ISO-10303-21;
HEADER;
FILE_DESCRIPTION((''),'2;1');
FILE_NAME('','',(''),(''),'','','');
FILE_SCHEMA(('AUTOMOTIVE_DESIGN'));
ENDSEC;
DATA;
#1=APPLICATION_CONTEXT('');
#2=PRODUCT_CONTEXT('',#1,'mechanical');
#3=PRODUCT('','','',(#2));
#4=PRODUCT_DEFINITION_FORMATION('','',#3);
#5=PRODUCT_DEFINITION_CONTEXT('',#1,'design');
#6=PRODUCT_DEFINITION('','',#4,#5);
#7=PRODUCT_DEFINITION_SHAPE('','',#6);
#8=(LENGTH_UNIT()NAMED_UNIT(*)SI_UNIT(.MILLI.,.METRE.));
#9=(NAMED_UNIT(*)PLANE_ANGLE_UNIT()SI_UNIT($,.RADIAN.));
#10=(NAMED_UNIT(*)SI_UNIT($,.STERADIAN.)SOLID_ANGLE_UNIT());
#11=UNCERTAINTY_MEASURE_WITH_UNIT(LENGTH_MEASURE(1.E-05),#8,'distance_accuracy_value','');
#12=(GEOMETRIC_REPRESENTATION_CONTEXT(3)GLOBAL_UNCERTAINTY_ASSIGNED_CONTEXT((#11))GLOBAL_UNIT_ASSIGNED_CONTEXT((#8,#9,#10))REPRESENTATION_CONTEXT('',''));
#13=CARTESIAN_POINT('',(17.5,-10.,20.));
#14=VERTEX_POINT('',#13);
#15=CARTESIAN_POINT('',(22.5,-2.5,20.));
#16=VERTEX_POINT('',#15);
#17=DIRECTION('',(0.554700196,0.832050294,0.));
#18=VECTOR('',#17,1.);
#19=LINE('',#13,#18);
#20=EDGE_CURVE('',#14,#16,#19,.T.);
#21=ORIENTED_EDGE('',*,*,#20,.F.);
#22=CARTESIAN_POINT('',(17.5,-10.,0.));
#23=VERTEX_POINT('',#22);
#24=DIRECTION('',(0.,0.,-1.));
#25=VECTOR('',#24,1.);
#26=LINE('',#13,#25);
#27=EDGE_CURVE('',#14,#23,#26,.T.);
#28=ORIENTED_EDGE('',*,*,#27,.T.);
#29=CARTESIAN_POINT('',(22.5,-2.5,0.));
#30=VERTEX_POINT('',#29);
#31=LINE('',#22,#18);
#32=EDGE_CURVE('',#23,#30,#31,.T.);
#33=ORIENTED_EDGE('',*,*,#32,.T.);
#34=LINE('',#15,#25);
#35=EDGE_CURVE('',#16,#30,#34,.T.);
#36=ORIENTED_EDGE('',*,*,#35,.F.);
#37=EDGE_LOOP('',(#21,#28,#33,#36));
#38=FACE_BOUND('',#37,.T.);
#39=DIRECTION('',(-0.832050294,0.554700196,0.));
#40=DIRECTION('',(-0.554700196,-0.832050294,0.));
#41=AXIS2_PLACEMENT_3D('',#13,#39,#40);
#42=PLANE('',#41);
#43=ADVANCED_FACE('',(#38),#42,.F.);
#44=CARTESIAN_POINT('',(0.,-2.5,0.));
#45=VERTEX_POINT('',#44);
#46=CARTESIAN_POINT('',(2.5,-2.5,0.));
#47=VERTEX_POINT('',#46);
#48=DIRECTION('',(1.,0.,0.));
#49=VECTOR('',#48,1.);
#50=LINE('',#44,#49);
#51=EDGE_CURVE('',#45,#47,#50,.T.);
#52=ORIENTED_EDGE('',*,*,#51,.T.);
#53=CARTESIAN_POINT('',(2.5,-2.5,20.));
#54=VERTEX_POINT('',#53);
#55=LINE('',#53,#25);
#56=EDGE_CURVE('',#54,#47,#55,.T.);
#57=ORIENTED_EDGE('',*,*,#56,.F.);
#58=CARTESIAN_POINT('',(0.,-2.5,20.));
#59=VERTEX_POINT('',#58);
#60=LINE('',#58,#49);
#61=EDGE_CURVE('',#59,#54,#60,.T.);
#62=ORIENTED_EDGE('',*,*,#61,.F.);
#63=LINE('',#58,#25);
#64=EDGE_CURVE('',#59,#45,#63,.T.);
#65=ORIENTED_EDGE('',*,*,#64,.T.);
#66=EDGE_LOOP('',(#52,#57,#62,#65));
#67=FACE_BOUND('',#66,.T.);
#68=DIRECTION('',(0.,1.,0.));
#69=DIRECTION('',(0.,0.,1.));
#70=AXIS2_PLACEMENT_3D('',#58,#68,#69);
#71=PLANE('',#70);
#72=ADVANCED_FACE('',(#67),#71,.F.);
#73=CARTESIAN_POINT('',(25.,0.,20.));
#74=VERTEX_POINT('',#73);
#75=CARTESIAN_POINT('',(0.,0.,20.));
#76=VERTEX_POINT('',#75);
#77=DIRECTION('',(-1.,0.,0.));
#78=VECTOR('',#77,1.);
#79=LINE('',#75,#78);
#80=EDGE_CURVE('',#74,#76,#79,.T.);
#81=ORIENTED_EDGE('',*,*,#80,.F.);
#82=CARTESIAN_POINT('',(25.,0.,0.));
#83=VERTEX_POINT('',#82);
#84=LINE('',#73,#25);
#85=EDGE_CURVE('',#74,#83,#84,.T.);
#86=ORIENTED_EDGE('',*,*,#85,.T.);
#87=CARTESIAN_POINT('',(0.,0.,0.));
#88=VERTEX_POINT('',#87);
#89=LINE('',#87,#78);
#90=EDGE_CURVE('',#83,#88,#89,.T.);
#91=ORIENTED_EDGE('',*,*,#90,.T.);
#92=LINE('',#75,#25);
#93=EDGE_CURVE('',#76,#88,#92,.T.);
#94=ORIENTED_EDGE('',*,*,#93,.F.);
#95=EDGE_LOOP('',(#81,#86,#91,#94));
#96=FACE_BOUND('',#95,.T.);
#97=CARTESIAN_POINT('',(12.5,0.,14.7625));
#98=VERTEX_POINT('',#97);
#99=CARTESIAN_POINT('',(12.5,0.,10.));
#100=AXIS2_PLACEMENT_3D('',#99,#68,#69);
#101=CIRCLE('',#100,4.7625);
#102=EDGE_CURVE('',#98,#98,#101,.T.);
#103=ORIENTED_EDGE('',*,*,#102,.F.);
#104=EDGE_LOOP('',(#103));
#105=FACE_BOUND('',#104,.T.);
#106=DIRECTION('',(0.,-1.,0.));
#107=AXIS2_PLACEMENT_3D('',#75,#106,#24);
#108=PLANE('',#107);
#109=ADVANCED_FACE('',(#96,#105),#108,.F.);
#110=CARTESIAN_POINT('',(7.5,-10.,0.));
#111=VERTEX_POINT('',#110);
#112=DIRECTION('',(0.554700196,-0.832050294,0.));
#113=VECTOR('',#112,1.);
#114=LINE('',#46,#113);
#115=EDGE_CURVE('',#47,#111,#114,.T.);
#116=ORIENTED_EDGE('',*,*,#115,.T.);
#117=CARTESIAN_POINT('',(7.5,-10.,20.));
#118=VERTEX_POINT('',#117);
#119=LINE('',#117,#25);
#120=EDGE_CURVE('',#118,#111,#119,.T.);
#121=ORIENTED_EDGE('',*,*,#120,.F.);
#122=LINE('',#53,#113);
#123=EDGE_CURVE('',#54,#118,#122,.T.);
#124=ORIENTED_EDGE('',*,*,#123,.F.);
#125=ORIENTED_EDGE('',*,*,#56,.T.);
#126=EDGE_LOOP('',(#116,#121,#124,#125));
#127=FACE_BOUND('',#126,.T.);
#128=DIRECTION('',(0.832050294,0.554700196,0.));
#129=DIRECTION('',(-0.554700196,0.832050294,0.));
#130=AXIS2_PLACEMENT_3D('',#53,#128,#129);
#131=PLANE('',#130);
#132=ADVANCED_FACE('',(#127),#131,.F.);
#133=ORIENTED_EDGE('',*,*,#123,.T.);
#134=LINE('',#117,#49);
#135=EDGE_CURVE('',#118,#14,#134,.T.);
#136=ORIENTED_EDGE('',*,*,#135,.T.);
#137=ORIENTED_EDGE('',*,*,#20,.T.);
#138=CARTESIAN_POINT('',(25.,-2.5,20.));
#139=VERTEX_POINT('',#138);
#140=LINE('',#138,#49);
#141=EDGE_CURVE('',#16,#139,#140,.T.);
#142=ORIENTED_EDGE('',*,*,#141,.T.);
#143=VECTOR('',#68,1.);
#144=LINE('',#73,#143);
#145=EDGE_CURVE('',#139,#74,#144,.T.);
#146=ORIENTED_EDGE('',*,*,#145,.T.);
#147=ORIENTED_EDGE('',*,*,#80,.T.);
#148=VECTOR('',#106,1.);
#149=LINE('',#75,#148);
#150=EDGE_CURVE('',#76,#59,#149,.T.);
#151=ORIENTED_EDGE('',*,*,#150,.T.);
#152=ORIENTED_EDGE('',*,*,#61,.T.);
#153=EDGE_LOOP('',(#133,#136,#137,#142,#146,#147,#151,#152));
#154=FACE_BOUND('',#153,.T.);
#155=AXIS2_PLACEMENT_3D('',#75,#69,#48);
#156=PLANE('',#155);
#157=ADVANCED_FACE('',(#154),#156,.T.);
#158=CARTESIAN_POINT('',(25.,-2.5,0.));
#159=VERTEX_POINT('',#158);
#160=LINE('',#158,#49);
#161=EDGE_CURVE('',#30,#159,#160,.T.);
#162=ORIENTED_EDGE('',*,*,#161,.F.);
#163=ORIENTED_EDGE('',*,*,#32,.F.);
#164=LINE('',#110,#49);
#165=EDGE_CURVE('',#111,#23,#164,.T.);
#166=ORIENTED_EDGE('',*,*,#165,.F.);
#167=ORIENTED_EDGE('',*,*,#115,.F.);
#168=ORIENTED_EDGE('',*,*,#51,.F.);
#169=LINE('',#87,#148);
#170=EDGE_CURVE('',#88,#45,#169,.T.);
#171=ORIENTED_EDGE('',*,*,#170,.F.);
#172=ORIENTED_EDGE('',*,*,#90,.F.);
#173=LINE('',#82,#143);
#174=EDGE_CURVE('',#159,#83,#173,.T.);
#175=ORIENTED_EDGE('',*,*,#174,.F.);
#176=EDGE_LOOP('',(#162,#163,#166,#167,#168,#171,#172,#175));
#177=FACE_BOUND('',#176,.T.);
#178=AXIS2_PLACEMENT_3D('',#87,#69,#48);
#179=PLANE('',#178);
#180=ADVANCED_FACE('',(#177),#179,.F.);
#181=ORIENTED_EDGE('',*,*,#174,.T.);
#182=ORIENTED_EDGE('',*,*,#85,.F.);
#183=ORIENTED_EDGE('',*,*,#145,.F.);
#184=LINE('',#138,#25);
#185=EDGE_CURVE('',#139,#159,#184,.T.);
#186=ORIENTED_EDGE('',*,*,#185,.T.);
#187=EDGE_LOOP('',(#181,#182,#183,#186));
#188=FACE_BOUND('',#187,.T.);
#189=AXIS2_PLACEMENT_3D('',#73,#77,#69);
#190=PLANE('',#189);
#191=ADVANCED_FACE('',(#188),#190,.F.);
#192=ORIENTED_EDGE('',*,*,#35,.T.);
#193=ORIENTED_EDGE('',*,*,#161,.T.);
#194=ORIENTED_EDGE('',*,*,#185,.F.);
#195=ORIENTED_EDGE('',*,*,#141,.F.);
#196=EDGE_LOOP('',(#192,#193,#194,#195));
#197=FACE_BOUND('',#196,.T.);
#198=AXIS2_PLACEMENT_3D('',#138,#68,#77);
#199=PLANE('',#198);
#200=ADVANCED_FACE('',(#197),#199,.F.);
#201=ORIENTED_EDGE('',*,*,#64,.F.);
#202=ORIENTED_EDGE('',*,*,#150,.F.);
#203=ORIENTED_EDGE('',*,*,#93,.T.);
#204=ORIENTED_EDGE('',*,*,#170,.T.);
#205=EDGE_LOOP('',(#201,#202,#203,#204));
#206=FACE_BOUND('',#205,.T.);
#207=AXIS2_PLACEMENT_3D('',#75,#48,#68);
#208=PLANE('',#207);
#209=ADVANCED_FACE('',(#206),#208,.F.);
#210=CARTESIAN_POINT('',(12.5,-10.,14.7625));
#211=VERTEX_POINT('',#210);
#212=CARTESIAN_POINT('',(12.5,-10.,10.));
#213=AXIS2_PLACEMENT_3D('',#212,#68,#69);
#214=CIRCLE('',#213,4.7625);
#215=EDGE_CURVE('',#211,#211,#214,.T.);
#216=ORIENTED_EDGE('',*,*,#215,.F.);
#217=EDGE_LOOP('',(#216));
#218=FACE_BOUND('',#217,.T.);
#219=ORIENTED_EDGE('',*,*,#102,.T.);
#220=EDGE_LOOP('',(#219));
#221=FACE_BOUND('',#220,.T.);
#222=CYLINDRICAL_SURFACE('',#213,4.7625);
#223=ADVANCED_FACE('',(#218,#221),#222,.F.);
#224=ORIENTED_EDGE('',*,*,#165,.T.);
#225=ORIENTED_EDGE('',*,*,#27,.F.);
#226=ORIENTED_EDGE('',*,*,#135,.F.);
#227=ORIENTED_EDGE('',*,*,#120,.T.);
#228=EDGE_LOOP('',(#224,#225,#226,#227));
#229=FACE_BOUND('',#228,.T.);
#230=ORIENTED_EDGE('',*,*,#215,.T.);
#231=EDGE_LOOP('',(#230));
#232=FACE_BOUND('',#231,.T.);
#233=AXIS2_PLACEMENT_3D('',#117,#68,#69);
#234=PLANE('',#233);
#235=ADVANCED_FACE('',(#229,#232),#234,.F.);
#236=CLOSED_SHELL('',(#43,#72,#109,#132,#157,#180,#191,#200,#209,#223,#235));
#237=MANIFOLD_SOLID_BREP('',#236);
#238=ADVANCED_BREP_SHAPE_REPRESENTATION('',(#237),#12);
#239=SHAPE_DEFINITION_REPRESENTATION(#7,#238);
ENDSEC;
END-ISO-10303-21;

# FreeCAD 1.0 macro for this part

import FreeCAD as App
import Part
import Sketcher

V = App.Vector

doc = App.newDocument("Part")
params = doc.addObject("Spreadsheet::Sheet", "Params")
for row, (alias, value) in enumerate([
    ("sketch1_width", "25 mm"),
    ("sketch1_width2", "10 mm"),
    ("sketch1_width3", "2.5 mm"),
    ("pad1_length", "20 mm"),
    ("pocket1_length", "10 mm"),
], start=1):
    params.set(f"A{row}", alias)
    params.set(f"B{row}", "=" + value)
    params.setAlias(f"B{row}", alias)

body = doc.addObject("PartDesign::Body", "Body")

# Sketch on XY plane
sketch1 = body.newObject("Sketcher::SketchObject", "Sketch")
sketch1.AttachmentSupport = (doc.getObject("XY_Plane"), [""])
sketch1.MapMode = "FlatFace"
sketch1.addGeometry([
    Part.LineSegment(V(25, 0, 0), V(0, 0, 0)),  # 0
    Part.LineSegment(V(0, 0, 0), V(0, -2.5, 0)),  # 1
    Part.LineSegment(V(0, -2.5, 0), V(2.5, -2.5, 0)),  # 2
    Part.LineSegment(V(2.5, -2.5, 0), V(7.5, -10, 0)),  # 3
    Part.LineSegment(V(7.5, -10, 0), V(17.5, -10, 0)),  # 4
    Part.LineSegment(V(17.5, -10, 0), V(22.5, -2.5, 0)),  # 5
    Part.LineSegment(V(22.5, -2.5, 0), V(25, -2.5, 0)),  # 6
    Part.LineSegment(V(25, -2.5, 0), V(25, 0, 0)),  # 7
], False)
sketch1.addConstraint([
    Sketcher.Constraint("Coincident", 0, 2, 1, 1),
    Sketcher.Constraint("Coincident", 1, 2, 2, 1),
    Sketcher.Constraint("Coincident", 2, 2, 3, 1),
    Sketcher.Constraint("Coincident", 3, 2, 4, 1),
    Sketcher.Constraint("Coincident", 4, 2, 5, 1),
    Sketcher.Constraint("Coincident", 5, 2, 6, 1),
    Sketcher.Constraint("Coincident", 6, 2, 7, 1),
    Sketcher.Constraint("Coincident", 7, 2, 0, 1),
    Sketcher.Constraint("Horizontal", 0),
    Sketcher.Constraint("Vertical", 1),
    Sketcher.Constraint("Horizontal", 2),
    Sketcher.Constraint("Horizontal", 4),
    Sketcher.Constraint("Horizontal", 6),
    Sketcher.Constraint("Vertical", 7),
    Sketcher.Constraint("Coincident", 0, 2, -1, 1),
    Sketcher.Constraint("Horizontal", 2, 2, 5, 2),
    Sketcher.Constraint("Equal", 2, 6),
    Sketcher.Constraint("Equal", 6, 1),
    Sketcher.Constraint("Equal", 3, 5),
    Sketcher.Constraint("DistanceX", 0, 2, 0, 1, 25.0),
    Sketcher.Constraint("DistanceX", 4, 1, 4, 2, 10.0),
    Sketcher.Constraint("DistanceX", 2, 1, 2, 2, 2.5),
    Sketcher.Constraint("DistanceY", 3, 2, -1, 1, 10.0),
])
sketch1.setExpression("Constraints[19]", "Params.sketch1_width")
sketch1.setExpression("Constraints[20]", "Params.sketch1_width2")
sketch1.setExpression("Constraints[21]", "Params.sketch1_width3")
pad1 = body.newObject("PartDesign::Pad", "Pad")
pad1.Profile = sketch1
pad1.setExpression("Length", "Params.pad1_length")

# Sketch on XZ plane
sketch2 = body.newObject("Sketcher::SketchObject", "Sketch001")
sketch2.AttachmentSupport = (doc.getObject("XZ_Plane"), [""])
sketch2.MapMode = "FlatFace"
sketch2.AttachmentOffset = App.Placement(V(0, 0, 10), App.Rotation())
sketch2.addGeometry(Part.Circle(V(12.5, 10, 0), V(0, 0, 1), 4.8), False)
sketch2.addConstraint([
    Sketcher.Constraint("Diameter", 0, 9.525),
    Sketcher.Constraint("DistanceY", -1, 1, 0, 3, 10.0),
    Sketcher.Constraint("DistanceX", -1, 1, 0, 3, 12.5),
])
pocket1 = body.newObject("PartDesign::Pocket", "Pocket")
pocket1.Profile = sketch2
pocket1.setExpression("Length", "Params.pocket1_length")

doc.recompute()
